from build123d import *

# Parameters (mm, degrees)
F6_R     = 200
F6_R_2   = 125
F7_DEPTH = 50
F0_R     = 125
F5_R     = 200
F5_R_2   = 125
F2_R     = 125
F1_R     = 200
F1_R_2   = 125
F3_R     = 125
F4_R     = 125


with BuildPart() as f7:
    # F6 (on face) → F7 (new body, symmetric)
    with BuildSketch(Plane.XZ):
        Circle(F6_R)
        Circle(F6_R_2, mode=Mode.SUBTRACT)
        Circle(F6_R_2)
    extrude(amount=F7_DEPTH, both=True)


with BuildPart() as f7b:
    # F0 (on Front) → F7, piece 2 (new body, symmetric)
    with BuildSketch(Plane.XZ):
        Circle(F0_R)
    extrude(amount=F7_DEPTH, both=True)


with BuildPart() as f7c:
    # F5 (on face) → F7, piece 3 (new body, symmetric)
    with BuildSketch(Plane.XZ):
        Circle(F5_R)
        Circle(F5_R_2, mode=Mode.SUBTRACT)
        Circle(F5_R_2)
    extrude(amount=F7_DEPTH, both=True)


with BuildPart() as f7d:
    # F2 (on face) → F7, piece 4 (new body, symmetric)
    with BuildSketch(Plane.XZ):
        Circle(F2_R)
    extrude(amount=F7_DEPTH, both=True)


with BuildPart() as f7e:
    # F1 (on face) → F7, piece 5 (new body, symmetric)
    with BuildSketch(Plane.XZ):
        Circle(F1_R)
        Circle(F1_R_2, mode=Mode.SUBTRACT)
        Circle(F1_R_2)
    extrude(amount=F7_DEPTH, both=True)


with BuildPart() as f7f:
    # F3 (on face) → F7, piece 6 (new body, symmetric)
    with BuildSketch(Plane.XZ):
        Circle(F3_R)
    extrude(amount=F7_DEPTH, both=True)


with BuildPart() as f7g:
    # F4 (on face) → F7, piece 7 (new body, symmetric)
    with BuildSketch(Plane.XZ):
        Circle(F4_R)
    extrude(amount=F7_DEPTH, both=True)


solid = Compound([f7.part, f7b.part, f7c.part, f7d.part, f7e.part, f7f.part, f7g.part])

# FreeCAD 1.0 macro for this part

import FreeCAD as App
import Part
import Sketcher
Q = App.Units.Quantity

doc = App.newDocument("Part")
body = doc.addObject("PartDesign::Body", "Body")

# Sketch on XZ plane
sketch1 = body.newObject("Sketcher::SketchObject", "Sketch")
sketch1.AttachmentSupport = (doc.getObject("XZ_Plane"), [""])
sketch1.MapMode = "FlatFace"
sketch1.addGeometry(Part.Circle(App.Vector(0, 0, 0), App.Vector(0, 0, 1), 200), False)
sketch1.addConstraint(Sketcher.Constraint("Coincident", 0, 3, -1, 1))
sketch1.addConstraint(Sketcher.Constraint("Diameter", 0, Q("400 mm")))
pad1 = body.newObject("PartDesign::Pad", "Pad")
pad1.Profile = sketch1
pad1.Length = 100
pad1.Midplane = True
body2 = doc.addObject("PartDesign::Body", "Body001")

# Sketch on XZ plane
sketch2 = body2.newObject("Sketcher::SketchObject", "Sketch001")
sketch2.AttachmentSupport = (doc.getObject("XZ_Plane001"), [""])
sketch2.MapMode = "FlatFace"
sketch2.addGeometry(Part.Circle(App.Vector(0, 0, 0), App.Vector(0, 0, 1), 125), False)
sketch2.addConstraint(Sketcher.Constraint("Coincident", 0, 3, -1, 1))
sketch2.addConstraint(Sketcher.Constraint("Diameter", 0, Q("250 mm")))
pad2 = body2.newObject("PartDesign::Pad", "Pad001")
pad2.Profile = sketch2
pad2.Length = 100
pad2.Midplane = True
body3 = doc.addObject("PartDesign::Body", "Body002")

# Sketch on XZ plane
sketch3 = body3.newObject("Sketcher::SketchObject", "Sketch002")
sketch3.AttachmentSupport = (doc.getObject("XZ_Plane002"), [""])
sketch3.MapMode = "FlatFace"
sketch3.addGeometry(Part.Circle(App.Vector(0, 0, 0), App.Vector(0, 0, 1), 200), False)
sketch3.addConstraint(Sketcher.Constraint("Coincident", 0, 3, -1, 1))
sketch3.addConstraint(Sketcher.Constraint("Diameter", 0, Q("400 mm")))
pad3 = body3.newObject("PartDesign::Pad", "Pad002")
pad3.Profile = sketch3
pad3.Length = 100
pad3.Midplane = True
body4 = doc.addObject("PartDesign::Body", "Body003")

# Sketch on XZ plane
sketch4 = body4.newObject("Sketcher::SketchObject", "Sketch003")
sketch4.AttachmentSupport = (doc.getObject("XZ_Plane003"), [""])
sketch4.MapMode = "FlatFace"
sketch4.addGeometry(Part.Circle(App.Vector(0, 0, 0), App.Vector(0, 0, 1), 125), False)
sketch4.addConstraint(Sketcher.Constraint("Coincident", 0, 3, -1, 1))
sketch4.addConstraint(Sketcher.Constraint("Diameter", 0, Q("250 mm")))
pad4 = body4.newObject("PartDesign::Pad", "Pad003")
pad4.Profile = sketch4
pad4.Length = 100
pad4.Midplane = True
body5 = doc.addObject("PartDesign::Body", "Body004")

# Sketch on XZ plane
sketch5 = body5.newObject("Sketcher::SketchObject", "Sketch004")
sketch5.AttachmentSupport = (doc.getObject("XZ_Plane004"), [""])
sketch5.MapMode = "FlatFace"
sketch5.addGeometry(Part.Circle(App.Vector(0, 0, 0), App.Vector(0, 0, 1), 200), False)
sketch5.addConstraint(Sketcher.Constraint("Coincident", 0, 3, -1, 1))
sketch5.addConstraint(Sketcher.Constraint("Diameter", 0, Q("400 mm")))
pad5 = body5.newObject("PartDesign::Pad", "Pad004")
pad5.Profile = sketch5
pad5.Length = 100
pad5.Midplane = True
body6 = doc.addObject("PartDesign::Body", "Body005")

# Sketch on XZ plane
sketch6 = body6.newObject("Sketcher::SketchObject", "Sketch005")
sketch6.AttachmentSupport = (doc.getObject("XZ_Plane005"), [""])
sketch6.MapMode = "FlatFace"
sketch6.addGeometry(Part.Circle(App.Vector(0, 0, 0), App.Vector(0, 0, 1), 125), False)
sketch6.addConstraint(Sketcher.Constraint("Coincident", 0, 3, -1, 1))
sketch6.addConstraint(Sketcher.Constraint("Diameter", 0, Q("250 mm")))
pad6 = body6.newObject("PartDesign::Pad", "Pad005")
pad6.Profile = sketch6
pad6.Length = 100
pad6.Midplane = True
body7 = doc.addObject("PartDesign::Body", "Body006")

# Sketch on XZ plane
sketch7 = body7.newObject("Sketcher::SketchObject", "Sketch006")
sketch7.AttachmentSupport = (doc.getObject("XZ_Plane006"), [""])
sketch7.MapMode = "FlatFace"
sketch7.addGeometry(Part.Circle(App.Vector(0, 0, 0), App.Vector(0, 0, 1), 125), False)
sketch7.addConstraint(Sketcher.Constraint("Coincident", 0, 3, -1, 1))
sketch7.addConstraint(Sketcher.Constraint("Diameter", 0, Q("250 mm")))
pad7 = body7.newObject("PartDesign::Pad", "Pad006")
pad7.Profile = sketch7
pad7.Length = 100
pad7.Midplane = True

doc.recompute()
